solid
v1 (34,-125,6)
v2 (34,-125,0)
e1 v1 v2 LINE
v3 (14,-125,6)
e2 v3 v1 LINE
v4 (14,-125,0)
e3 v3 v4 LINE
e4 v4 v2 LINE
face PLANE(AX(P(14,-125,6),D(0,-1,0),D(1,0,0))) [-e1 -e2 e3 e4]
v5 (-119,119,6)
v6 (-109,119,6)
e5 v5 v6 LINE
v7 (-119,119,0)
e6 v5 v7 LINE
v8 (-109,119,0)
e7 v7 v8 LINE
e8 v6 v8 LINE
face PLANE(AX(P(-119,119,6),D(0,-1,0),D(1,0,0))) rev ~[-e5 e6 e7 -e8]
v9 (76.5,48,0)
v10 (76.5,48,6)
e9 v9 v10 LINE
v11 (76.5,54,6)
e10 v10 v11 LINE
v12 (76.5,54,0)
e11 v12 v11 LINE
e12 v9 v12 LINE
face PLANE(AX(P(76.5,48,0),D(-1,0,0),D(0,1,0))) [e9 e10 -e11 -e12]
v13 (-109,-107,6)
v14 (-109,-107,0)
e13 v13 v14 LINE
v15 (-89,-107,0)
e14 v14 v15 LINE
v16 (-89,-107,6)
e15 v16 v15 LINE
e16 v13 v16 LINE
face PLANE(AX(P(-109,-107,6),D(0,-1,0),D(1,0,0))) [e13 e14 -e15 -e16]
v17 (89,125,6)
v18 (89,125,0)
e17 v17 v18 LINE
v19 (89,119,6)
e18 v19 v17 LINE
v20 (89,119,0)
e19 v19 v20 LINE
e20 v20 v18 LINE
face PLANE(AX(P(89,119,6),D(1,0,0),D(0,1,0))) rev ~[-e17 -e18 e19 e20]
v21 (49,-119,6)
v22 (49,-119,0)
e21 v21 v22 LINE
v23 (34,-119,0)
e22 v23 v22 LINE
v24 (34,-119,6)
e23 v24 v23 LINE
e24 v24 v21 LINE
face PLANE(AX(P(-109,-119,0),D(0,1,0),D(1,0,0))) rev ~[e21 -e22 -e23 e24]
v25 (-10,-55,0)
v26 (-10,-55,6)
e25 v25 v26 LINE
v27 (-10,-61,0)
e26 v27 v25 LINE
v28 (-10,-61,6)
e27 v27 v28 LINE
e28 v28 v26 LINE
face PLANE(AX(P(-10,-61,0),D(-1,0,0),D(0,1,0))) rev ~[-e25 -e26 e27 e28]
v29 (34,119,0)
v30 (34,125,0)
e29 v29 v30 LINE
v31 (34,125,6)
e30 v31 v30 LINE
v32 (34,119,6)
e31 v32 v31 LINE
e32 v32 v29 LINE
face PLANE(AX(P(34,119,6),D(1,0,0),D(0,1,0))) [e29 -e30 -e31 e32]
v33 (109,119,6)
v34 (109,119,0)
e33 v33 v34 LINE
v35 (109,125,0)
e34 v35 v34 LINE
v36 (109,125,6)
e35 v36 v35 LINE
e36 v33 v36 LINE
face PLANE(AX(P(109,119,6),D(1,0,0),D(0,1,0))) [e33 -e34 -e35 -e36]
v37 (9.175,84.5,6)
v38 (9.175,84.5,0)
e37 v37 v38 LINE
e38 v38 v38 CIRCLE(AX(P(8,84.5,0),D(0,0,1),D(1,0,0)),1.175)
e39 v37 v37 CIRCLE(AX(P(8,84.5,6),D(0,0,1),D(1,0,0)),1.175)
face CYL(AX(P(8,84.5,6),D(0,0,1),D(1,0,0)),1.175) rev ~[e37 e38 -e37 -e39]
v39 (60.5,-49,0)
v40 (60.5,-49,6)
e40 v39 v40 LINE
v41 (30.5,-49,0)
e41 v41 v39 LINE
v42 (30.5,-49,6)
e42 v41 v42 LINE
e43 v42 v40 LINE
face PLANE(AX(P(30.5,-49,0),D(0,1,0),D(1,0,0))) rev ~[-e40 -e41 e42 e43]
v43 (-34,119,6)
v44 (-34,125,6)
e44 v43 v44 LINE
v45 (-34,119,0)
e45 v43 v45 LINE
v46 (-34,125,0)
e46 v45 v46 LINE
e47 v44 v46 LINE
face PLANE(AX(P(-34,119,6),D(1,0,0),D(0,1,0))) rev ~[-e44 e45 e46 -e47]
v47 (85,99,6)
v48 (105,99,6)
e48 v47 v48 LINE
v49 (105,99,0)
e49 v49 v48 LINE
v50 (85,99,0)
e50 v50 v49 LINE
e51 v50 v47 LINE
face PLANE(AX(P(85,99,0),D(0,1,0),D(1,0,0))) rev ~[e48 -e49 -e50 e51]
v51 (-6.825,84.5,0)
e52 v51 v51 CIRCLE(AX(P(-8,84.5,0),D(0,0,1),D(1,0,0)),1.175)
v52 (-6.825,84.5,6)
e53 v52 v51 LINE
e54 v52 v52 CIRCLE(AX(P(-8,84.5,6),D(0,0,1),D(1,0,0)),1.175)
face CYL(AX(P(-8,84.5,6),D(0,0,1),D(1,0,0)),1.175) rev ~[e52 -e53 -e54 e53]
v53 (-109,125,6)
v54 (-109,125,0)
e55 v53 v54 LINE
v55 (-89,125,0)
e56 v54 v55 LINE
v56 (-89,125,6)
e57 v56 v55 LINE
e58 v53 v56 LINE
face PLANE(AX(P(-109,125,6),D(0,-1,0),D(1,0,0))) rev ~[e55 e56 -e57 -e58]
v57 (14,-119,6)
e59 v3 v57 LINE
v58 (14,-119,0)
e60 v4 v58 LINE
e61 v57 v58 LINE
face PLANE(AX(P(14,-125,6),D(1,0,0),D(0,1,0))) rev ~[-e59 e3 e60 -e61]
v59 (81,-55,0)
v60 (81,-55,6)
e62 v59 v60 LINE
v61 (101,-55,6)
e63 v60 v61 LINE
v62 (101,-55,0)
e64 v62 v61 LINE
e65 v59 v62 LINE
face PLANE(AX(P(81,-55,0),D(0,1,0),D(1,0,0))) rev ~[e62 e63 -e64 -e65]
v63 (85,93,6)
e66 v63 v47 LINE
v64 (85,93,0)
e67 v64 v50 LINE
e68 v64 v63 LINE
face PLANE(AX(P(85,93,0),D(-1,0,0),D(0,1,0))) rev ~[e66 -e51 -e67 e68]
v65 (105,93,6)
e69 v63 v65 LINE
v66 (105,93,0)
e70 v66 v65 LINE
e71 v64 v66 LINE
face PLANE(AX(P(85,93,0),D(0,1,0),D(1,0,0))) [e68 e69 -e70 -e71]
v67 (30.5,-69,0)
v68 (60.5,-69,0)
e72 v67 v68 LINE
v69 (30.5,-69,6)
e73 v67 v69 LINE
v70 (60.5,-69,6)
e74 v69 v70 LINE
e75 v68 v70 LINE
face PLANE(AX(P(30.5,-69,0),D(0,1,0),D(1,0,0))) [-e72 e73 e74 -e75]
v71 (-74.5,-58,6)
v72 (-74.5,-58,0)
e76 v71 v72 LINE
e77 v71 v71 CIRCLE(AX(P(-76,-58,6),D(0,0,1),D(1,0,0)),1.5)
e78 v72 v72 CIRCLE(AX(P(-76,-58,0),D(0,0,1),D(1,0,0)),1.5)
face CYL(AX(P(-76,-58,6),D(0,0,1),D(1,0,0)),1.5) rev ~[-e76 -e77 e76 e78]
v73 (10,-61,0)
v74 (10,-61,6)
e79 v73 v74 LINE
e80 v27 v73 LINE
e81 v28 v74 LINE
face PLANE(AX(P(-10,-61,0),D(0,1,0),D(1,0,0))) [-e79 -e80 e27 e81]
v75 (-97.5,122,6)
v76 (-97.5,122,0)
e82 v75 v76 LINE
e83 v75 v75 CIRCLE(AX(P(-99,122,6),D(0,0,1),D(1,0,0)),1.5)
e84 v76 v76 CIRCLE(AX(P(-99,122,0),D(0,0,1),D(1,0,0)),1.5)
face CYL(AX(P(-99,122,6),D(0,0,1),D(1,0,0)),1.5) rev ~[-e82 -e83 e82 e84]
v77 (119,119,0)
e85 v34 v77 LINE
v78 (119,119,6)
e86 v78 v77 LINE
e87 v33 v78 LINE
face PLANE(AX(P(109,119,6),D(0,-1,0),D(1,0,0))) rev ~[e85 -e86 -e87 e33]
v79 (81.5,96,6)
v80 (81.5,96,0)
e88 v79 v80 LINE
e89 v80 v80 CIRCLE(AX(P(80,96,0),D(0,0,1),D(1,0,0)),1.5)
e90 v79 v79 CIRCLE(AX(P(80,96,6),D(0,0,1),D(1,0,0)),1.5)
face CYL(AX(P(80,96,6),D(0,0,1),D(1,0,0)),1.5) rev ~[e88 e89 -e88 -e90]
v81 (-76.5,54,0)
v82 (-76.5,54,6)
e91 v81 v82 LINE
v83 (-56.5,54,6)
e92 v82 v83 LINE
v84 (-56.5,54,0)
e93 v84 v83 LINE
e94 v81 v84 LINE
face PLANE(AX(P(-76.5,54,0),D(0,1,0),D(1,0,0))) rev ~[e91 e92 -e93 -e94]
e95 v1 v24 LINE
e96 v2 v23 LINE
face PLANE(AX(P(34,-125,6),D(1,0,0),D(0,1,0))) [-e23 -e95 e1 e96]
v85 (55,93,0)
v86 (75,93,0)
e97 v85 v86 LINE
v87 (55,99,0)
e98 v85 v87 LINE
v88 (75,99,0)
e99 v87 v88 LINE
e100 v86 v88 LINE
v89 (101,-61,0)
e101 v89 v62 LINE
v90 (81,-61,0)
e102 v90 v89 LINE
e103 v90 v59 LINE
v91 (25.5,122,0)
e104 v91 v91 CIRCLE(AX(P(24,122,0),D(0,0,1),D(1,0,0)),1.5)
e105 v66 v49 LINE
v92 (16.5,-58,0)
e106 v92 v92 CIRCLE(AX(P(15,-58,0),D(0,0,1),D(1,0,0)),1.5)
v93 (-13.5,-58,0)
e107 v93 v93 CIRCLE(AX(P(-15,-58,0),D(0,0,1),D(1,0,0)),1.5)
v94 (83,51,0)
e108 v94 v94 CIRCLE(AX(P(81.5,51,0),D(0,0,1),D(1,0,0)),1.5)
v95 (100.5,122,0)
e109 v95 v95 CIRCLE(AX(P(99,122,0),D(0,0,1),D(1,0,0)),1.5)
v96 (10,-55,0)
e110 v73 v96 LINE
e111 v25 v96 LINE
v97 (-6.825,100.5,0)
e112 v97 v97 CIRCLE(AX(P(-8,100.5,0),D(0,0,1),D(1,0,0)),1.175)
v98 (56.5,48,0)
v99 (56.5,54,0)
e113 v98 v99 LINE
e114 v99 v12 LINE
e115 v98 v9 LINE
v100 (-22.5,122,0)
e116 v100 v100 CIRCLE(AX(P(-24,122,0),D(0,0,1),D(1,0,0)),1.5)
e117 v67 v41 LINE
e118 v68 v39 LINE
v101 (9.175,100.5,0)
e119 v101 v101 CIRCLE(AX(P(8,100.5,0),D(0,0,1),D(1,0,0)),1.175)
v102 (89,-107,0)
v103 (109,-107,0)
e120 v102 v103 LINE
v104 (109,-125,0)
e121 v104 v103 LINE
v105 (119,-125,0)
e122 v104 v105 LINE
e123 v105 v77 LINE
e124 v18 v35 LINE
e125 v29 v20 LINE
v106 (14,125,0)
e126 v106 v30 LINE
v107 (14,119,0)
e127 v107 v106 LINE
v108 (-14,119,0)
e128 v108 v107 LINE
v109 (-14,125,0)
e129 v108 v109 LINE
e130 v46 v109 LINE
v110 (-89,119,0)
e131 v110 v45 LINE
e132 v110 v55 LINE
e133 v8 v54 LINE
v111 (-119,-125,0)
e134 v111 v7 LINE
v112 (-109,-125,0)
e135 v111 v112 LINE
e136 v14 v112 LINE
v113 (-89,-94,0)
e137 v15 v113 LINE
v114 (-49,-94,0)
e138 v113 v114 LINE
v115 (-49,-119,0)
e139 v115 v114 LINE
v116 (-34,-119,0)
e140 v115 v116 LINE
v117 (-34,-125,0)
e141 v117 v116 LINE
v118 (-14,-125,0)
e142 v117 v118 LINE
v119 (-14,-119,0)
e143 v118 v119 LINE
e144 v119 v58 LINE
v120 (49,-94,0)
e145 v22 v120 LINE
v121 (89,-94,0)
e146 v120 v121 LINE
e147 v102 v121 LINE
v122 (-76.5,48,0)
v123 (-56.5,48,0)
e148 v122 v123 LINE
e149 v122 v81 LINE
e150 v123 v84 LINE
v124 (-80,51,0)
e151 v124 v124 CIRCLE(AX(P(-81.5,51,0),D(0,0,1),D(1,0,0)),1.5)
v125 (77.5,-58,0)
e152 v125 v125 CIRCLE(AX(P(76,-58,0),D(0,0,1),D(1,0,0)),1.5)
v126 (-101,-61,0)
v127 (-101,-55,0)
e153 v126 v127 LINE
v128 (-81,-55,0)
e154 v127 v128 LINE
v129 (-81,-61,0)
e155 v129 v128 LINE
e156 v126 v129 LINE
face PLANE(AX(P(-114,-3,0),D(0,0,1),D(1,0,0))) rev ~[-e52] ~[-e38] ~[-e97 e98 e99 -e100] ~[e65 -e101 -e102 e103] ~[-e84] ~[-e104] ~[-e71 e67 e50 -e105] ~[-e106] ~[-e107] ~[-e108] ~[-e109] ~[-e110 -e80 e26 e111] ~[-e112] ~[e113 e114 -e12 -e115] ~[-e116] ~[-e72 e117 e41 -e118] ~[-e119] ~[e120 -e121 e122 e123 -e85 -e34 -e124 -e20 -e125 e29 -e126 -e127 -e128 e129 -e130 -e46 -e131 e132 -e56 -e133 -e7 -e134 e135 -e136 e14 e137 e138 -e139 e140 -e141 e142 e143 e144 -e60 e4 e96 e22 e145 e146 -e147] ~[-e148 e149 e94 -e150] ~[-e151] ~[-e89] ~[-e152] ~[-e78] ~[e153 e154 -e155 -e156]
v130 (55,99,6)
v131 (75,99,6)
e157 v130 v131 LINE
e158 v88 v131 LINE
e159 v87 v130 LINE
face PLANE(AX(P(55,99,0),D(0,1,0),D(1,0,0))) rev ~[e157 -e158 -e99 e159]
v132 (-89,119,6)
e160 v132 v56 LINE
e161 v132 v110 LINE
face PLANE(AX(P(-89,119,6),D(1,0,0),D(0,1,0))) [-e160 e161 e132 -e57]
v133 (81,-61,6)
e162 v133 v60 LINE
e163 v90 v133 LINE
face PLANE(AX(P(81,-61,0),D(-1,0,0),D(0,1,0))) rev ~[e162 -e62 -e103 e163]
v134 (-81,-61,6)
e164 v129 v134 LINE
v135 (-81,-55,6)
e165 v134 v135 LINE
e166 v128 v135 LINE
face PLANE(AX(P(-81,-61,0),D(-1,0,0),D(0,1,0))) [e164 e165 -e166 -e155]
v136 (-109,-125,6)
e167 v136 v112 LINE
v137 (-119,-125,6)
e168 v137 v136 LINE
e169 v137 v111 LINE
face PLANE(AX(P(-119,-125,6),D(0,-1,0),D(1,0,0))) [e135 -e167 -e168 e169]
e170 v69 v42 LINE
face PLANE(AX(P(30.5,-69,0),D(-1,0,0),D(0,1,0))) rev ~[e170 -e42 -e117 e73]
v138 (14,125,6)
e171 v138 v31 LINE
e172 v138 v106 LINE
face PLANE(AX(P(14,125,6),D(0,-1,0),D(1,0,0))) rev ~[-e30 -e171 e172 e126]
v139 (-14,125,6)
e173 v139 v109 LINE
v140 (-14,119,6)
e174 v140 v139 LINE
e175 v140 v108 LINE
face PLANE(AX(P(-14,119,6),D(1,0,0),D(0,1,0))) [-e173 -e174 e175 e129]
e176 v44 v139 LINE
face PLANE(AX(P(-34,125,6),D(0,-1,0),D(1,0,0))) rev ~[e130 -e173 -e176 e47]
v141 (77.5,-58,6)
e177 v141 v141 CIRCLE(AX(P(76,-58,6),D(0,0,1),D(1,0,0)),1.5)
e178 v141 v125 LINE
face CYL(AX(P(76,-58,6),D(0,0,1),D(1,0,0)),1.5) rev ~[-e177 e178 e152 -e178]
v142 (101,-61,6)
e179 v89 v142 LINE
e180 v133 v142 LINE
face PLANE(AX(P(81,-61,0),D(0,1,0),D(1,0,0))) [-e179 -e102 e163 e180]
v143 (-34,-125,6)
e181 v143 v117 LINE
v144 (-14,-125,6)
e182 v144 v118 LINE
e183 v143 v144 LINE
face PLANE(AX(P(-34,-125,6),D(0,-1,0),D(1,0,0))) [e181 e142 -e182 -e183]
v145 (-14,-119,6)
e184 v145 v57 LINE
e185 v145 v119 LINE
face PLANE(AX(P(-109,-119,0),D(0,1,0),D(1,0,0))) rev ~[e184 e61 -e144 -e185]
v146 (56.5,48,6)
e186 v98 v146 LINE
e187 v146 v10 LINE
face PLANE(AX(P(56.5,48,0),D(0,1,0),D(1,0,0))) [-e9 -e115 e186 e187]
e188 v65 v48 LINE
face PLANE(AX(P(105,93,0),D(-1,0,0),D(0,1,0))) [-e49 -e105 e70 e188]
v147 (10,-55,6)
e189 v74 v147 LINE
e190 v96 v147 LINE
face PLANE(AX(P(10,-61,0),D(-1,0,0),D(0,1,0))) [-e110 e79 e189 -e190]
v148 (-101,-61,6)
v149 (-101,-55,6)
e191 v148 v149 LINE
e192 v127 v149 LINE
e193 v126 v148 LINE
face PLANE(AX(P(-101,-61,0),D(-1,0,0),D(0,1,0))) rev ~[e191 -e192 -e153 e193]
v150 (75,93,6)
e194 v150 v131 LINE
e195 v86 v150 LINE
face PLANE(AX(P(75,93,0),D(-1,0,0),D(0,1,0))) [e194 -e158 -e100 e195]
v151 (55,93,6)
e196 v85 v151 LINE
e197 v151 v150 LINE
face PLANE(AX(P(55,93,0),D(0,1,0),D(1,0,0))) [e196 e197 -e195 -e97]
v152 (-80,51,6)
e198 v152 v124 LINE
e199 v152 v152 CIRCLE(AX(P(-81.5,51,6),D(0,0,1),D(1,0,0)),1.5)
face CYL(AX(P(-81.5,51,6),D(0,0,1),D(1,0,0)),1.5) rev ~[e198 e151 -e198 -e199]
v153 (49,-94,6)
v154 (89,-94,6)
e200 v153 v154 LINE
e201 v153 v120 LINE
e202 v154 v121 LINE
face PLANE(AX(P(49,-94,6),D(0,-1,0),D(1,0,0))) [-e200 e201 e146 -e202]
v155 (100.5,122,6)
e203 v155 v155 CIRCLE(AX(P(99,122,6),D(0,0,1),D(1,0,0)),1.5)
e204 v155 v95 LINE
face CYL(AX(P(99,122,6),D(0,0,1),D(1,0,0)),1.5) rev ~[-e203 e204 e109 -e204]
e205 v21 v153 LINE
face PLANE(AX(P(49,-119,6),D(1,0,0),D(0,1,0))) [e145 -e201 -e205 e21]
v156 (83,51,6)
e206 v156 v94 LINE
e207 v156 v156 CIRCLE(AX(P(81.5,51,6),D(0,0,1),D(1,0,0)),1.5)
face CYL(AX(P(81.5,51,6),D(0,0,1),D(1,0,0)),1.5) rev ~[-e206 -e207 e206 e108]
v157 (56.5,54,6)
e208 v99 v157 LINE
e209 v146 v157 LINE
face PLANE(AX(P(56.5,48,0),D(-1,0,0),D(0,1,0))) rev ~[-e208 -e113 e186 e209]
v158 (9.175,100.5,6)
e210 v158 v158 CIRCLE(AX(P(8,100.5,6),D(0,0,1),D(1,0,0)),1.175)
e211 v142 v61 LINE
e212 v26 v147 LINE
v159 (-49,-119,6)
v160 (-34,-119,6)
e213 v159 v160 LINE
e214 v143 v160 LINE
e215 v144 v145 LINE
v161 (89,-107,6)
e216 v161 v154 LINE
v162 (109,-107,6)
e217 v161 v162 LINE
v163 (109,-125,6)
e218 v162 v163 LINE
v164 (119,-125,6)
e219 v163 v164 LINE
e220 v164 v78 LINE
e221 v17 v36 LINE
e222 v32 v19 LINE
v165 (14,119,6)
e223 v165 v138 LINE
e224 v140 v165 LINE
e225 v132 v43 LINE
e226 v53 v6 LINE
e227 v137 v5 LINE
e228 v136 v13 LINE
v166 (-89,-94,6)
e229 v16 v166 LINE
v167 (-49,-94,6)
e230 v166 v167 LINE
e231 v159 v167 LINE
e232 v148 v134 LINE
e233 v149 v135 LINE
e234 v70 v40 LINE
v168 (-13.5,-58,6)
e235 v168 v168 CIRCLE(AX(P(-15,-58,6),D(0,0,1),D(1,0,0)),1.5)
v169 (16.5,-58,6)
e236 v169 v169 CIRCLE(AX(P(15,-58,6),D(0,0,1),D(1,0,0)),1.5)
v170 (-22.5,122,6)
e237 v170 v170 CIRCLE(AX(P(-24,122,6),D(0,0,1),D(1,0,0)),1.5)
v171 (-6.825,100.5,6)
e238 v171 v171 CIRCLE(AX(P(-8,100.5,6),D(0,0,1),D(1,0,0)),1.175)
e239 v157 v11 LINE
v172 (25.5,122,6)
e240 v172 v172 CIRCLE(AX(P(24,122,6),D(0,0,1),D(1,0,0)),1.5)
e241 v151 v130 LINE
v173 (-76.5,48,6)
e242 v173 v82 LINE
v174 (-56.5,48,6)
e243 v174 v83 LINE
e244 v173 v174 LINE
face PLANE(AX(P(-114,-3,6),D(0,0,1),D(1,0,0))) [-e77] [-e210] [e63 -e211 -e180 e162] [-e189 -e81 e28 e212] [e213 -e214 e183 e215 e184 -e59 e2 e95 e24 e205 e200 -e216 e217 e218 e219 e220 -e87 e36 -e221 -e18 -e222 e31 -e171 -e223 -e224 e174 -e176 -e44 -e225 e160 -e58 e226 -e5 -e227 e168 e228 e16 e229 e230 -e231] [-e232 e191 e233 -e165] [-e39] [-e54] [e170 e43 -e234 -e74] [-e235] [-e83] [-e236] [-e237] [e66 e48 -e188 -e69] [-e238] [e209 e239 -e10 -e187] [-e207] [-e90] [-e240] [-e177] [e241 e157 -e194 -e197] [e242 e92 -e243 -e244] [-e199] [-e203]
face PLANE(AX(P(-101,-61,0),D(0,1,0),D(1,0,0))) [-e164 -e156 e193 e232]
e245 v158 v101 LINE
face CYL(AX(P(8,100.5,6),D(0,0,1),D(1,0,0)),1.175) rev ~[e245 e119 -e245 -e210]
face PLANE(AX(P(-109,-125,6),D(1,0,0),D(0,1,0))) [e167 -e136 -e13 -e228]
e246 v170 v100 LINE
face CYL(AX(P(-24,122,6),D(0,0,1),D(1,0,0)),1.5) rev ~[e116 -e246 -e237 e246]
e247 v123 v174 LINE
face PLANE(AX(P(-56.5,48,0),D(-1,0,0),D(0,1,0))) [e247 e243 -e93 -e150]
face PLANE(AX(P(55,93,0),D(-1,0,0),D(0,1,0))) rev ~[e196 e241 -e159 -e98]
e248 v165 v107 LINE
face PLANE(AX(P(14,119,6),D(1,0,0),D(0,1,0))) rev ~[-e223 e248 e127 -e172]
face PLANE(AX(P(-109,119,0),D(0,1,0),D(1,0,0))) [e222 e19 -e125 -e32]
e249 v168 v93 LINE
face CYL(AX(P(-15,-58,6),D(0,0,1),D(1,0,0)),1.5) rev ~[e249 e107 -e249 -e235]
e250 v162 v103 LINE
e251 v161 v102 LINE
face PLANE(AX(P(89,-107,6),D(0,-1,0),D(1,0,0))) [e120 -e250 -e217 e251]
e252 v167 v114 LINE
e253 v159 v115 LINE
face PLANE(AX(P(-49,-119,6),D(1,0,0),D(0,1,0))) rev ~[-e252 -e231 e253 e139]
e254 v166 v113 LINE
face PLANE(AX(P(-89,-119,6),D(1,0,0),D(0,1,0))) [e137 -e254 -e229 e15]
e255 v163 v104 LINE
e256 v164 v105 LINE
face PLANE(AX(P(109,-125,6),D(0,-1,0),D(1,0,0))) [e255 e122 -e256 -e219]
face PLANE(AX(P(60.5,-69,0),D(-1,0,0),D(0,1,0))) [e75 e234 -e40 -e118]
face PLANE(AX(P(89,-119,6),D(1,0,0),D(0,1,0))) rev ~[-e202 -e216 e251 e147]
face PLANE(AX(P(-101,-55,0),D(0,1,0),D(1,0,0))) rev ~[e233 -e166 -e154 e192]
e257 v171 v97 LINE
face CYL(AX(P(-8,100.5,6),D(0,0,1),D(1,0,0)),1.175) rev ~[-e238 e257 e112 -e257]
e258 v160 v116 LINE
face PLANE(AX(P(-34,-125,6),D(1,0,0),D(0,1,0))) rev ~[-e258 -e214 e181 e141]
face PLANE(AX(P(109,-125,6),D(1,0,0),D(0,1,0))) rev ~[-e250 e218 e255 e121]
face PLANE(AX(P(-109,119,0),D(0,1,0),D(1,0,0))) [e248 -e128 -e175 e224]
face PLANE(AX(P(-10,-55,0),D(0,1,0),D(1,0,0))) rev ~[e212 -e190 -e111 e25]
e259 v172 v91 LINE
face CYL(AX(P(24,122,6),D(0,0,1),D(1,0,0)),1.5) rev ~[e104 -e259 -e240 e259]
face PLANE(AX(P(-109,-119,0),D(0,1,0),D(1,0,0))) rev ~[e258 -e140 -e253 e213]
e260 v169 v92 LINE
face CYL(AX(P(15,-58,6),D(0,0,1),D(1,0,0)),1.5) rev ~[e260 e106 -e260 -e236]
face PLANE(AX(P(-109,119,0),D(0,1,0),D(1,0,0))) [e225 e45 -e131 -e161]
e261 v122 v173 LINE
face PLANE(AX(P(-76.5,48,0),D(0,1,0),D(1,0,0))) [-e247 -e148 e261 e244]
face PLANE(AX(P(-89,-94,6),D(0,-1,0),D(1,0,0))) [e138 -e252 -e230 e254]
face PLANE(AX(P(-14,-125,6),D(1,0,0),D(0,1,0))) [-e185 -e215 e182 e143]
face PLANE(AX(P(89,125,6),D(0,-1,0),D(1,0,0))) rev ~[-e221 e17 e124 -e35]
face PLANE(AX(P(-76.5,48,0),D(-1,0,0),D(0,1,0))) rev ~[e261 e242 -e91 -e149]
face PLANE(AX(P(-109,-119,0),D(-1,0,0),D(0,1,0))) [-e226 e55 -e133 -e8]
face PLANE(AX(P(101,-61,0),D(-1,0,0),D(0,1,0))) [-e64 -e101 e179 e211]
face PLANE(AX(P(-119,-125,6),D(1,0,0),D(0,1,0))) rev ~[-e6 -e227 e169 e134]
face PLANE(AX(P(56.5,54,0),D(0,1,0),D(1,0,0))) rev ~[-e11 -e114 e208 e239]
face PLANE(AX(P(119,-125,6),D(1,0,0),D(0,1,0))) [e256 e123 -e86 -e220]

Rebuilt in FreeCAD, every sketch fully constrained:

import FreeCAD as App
import Part
import Sketcher
from FreeCAD import Vector

doc = App.newDocument("Part")
params = doc.addObject("Spreadsheet::Sheet", "Params")
for row, (alias, value) in enumerate([
    ("sketch1_width", "218 mm"),
    ("sketch1_width2", "20 mm"),
    ("sketch1_width3", "30 mm"),
    ("sketch1_height", "238 mm"),
    ("sketch1_height2", "6 mm"),
    ("pad1_length", "6 mm"),
    ("sketch2_width", "40 mm"),
    ("sketch2_height", "25 mm"),
    ("pocket1_length", "6 mm"),
    ("sketch3_width", "20 mm"),
    ("sketch3_height", "6 mm"),
    ("pad2_length", "6 mm"),
    ("sketch4_diameter", "3 mm"),
    ("pocket2_length", "6 mm"),
    ("sketch5_width", "10 mm"),
    ("sketch5_height", "244 mm"),
    ("pad3_length", "6 mm"),
    ("sketch6_width", "20 mm"),
    ("sketch6_height", "12 mm"),
    ("pocket3_length", "6 mm"),
    ("sketch7_diameter", "2.35 mm"),
], start=1):
    params.set(f"A{row}", alias)
    params.set(f"B{row}", "=" + value)
    params.setAlias(f"B{row}", alias)

body = doc.addObject("PartDesign::Body", "Body")

sketch1 = body.newObject("Sketcher::SketchObject", "Sketch")
sketch1.AttachmentSupport = (doc.getObject("XY_Plane"), [""])
sketch1.MapMode = "FlatFace"
sketch1.addGeometry(Part.LineSegment(Vector(-109, 119, 0), Vector(-109, -119, 0)), False)
sketch1.addGeometry(Part.LineSegment(Vector(-109, -119, 0), Vector(109, -119, 0)), False)
sketch1.addGeometry(Part.LineSegment(Vector(109, -119, 0), Vector(109, 119, 0)), False)
sketch1.addGeometry(Part.LineSegment(Vector(109, 119, 0), Vector(-109, 119, 0)), False)
sketch1.addGeometry(Part.LineSegment(Vector(-81, -61, 0), Vector(-101, -61, 0)), False)
sketch1.addGeometry(Part.LineSegment(Vector(-101, -61, 0), Vector(-101, -55, 0)), False)
sketch1.addGeometry(Part.LineSegment(Vector(-101, -55, 0), Vector(-81, -55, 0)), False)
sketch1.addGeometry(Part.LineSegment(Vector(-81, -55, 0), Vector(-81, -61, 0)), False)
sketch1.addGeometry(Part.LineSegment(Vector(10, -61, 0), Vector(-10, -61, 0)), False)
sketch1.addGeometry(Part.LineSegment(Vector(-10, -61, 0), Vector(-10, -55, 0)), False)
sketch1.addGeometry(Part.LineSegment(Vector(-10, -55, 0), Vector(10, -55, 0)), False)
sketch1.addGeometry(Part.LineSegment(Vector(10, -55, 0), Vector(10, -61, 0)), False)
sketch1.addGeometry(Part.LineSegment(Vector(60, -69, 0), Vector(30, -69, 0)), False)
sketch1.addGeometry(Part.LineSegment(Vector(30, -69, 0), Vector(30, -49, 0)), False)
sketch1.addGeometry(Part.LineSegment(Vector(30, -49, 0), Vector(60, -49, 0)), False)
sketch1.addGeometry(Part.LineSegment(Vector(60, -49, 0), Vector(60, -69, 0)), False)
sketch1.addGeometry(Part.LineSegment(Vector(101, -61, 0), Vector(81, -61, 0)), False)
sketch1.addGeometry(Part.LineSegment(Vector(81, -61, 0), Vector(81, -55, 0)), False)
sketch1.addGeometry(Part.LineSegment(Vector(81, -55, 0), Vector(101, -55, 0)), False)
sketch1.addGeometry(Part.LineSegment(Vector(101, -55, 0), Vector(101, -61, 0)), False)
sketch1.addGeometry(Part.LineSegment(Vector(-56, 48, 0), Vector(-76, 48, 0)), False)
sketch1.addGeometry(Part.LineSegment(Vector(-76, 48, 0), Vector(-76, 54, 0)), False)
sketch1.addGeometry(Part.LineSegment(Vector(-76, 54, 0), Vector(-56, 54, 0)), False)
sketch1.addGeometry(Part.LineSegment(Vector(-56, 54, 0), Vector(-56, 48, 0)), False)
sketch1.addGeometry(Part.LineSegment(Vector(76, 48, 0), Vector(56, 48, 0)), False)
sketch1.addGeometry(Part.LineSegment(Vector(56, 48, 0), Vector(56, 54, 0)), False)
sketch1.addGeometry(Part.LineSegment(Vector(56, 54, 0), Vector(76, 54, 0)), False)
sketch1.addGeometry(Part.LineSegment(Vector(76, 54, 0), Vector(76, 48, 0)), False)
sketch1.addGeometry(Part.LineSegment(Vector(75, 93, 0), Vector(55, 93, 0)), False)
sketch1.addGeometry(Part.LineSegment(Vector(55, 93, 0), Vector(55, 99, 0)), False)
sketch1.addGeometry(Part.LineSegment(Vector(55, 99, 0), Vector(75, 99, 0)), False)
sketch1.addGeometry(Part.LineSegment(Vector(75, 99, 0), Vector(75, 93, 0)), False)
sketch1.addGeometry(Part.LineSegment(Vector(105, 93, 0), Vector(85, 93, 0)), False)
sketch1.addGeometry(Part.LineSegment(Vector(85, 93, 0), Vector(85, 99, 0)), False)
sketch1.addGeometry(Part.LineSegment(Vector(85, 99, 0), Vector(105, 99, 0)), False)
sketch1.addGeometry(Part.LineSegment(Vector(105, 99, 0), Vector(105, 93, 0)), False)
sketch1.addConstraint(Sketcher.Constraint("Coincident", 0, 2, 1, 1))
sketch1.addConstraint(Sketcher.Constraint("Coincident", 1, 2, 2, 1))
sketch1.addConstraint(Sketcher.Constraint("Coincident", 2, 2, 3, 1))
sketch1.addConstraint(Sketcher.Constraint("Coincident", 3, 2, 0, 1))
sketch1.addConstraint(Sketcher.Constraint("Coincident", 4, 2, 5, 1))
sketch1.addConstraint(Sketcher.Constraint("Coincident", 5, 2, 6, 1))
sketch1.addConstraint(Sketcher.Constraint("Coincident", 6, 2, 7, 1))
sketch1.addConstraint(Sketcher.Constraint("Coincident", 7, 2, 4, 1))
sketch1.addConstraint(Sketcher.Constraint("Coincident", 8, 2, 9, 1))
sketch1.addConstraint(Sketcher.Constraint("Coincident", 9, 2, 10, 1))
sketch1.addConstraint(Sketcher.Constraint("Coincident", 10, 2, 11, 1))
sketch1.addConstraint(Sketcher.Constraint("Coincident", 11, 2, 8, 1))
sketch1.addConstraint(Sketcher.Constraint("Coincident", 12, 2, 13, 1))
sketch1.addConstraint(Sketcher.Constraint("Coincident", 13, 2, 14, 1))
sketch1.addConstraint(Sketcher.Constraint("Coincident", 14, 2, 15, 1))
sketch1.addConstraint(Sketcher.Constraint("Coincident", 15, 2, 12, 1))
sketch1.addConstraint(Sketcher.Constraint("Coincident", 16, 2, 17, 1))
sketch1.addConstraint(Sketcher.Constraint("Coincident", 17, 2, 18, 1))
sketch1.addConstraint(Sketcher.Constraint("Coincident", 18, 2, 19, 1))
sketch1.addConstraint(Sketcher.Constraint("Coincident", 19, 2, 16, 1))
sketch1.addConstraint(Sketcher.Constraint("Coincident", 20, 2, 21, 1))
sketch1.addConstraint(Sketcher.Constraint("Coincident", 21, 2, 22, 1))
sketch1.addConstraint(Sketcher.Constraint("Coincident", 22, 2, 23, 1))
sketch1.addConstraint(Sketcher.Constraint("Coincident", 23, 2, 20, 1))
sketch1.addConstraint(Sketcher.Constraint("Coincident", 24, 2, 25, 1))
sketch1.addConstraint(Sketcher.Constraint("Coincident", 25, 2, 26, 1))
sketch1.addConstraint(Sketcher.Constraint("Coincident", 26, 2, 27, 1))
sketch1.addConstraint(Sketcher.Constraint("Coincident", 27, 2, 24, 1))
sketch1.addConstraint(Sketcher.Constraint("Coincident", 28, 2, 29, 1))
sketch1.addConstraint(Sketcher.Constraint("Coincident", 29, 2, 30, 1))
sketch1.addConstraint(Sketcher.Constraint("Coincident", 30, 2, 31, 1))
sketch1.addConstraint(Sketcher.Constraint("Coincident", 31, 2, 28, 1))
sketch1.addConstraint(Sketcher.Constraint("Coincident", 32, 2, 33, 1))
sketch1.addConstraint(Sketcher.Constraint("Coincident", 33, 2, 34, 1))
sketch1.addConstraint(Sketcher.Constraint("Coincident", 34, 2, 35, 1))
sketch1.addConstraint(Sketcher.Constraint("Coincident", 35, 2, 32, 1))
sketch1.addConstraint(Sketcher.Constraint("Vertical", 0))
sketch1.addConstraint(Sketcher.Constraint("Horizontal", 1))
sketch1.addConstraint(Sketcher.Constraint("Vertical", 2))
sketch1.addConstraint(Sketcher.Constraint("Horizontal", 3))
sketch1.addConstraint(Sketcher.Constraint("Horizontal", 4))
sketch1.addConstraint(Sketcher.Constraint("Vertical", 5))
sketch1.addConstraint(Sketcher.Constraint("Horizontal", 6))
sketch1.addConstraint(Sketcher.Constraint("Vertical", 7))
sketch1.addConstraint(Sketcher.Constraint("Horizontal", 8))
sketch1.addConstraint(Sketcher.Constraint("Vertical", 9))
sketch1.addConstraint(Sketcher.Constraint("Horizontal", 10))
sketch1.addConstraint(Sketcher.Constraint("Vertical", 11))
sketch1.addConstraint(Sketcher.Constraint("Horizontal", 12))
sketch1.addConstraint(Sketcher.Constraint("Vertical", 13))
sketch1.addConstraint(Sketcher.Constraint("Horizontal", 14))
sketch1.addConstraint(Sketcher.Constraint("Vertical", 15))
sketch1.addConstraint(Sketcher.Constraint("Horizontal", 16))
sketch1.addConstraint(Sketcher.Constraint("Vertical", 17))
sketch1.addConstraint(Sketcher.Constraint("Horizontal", 18))
sketch1.addConstraint(Sketcher.Constraint("Vertical", 19))
sketch1.addConstraint(Sketcher.Constraint("Horizontal", 20))
sketch1.addConstraint(Sketcher.Constraint("Vertical", 21))
sketch1.addConstraint(Sketcher.Constraint("Horizontal", 22))
sketch1.addConstraint(Sketcher.Constraint("Vertical", 23))
sketch1.addConstraint(Sketcher.Constraint("Horizontal", 24))
sketch1.addConstraint(Sketcher.Constraint("Vertical", 25))
sketch1.addConstraint(Sketcher.Constraint("Horizontal", 26))
sketch1.addConstraint(Sketcher.Constraint("Vertical", 27))
sketch1.addConstraint(Sketcher.Constraint("Horizontal", 28))
sketch1.addConstraint(Sketcher.Constraint("Vertical", 29))
sketch1.addConstraint(Sketcher.Constraint("Horizontal", 30))
sketch1.addConstraint(Sketcher.Constraint("Vertical", 31))
sketch1.addConstraint(Sketcher.Constraint("Horizontal", 32))
sketch1.addConstraint(Sketcher.Constraint("Vertical", 33))
sketch1.addConstraint(Sketcher.Constraint("Horizontal", 34))
sketch1.addConstraint(Sketcher.Constraint("Vertical", 35))
sketch1.addConstraint(Sketcher.Constraint("Symmetric", 0, 2, 2, 2, -1, 1))
sketch1.addConstraint(Sketcher.Constraint("Symmetric", 7, 2, 16, 2, -2))
sketch1.addConstraint(Sketcher.Constraint("Symmetric", 5, 2, 18, 2, -2))
sketch1.addConstraint(Sketcher.Constraint("Symmetric", 23, 2, 24, 2, -2))
sketch1.addConstraint(Sketcher.Constraint("Symmetric", 21, 2, 26, 2, -2))
sketch1.addConstraint(Sketcher.Constraint("Horizontal", 7, 2, 8, 2))
sketch1.addConstraint(Sketcher.Constraint("Horizontal", 6, 2, 9, 2))
sketch1.addConstraint(Sketcher.Constraint("Horizontal", 31, 2, 32, 2))
sketch1.addConstraint(Sketcher.Constraint("Horizontal", 30, 2, 33, 2))
sketch1.addConstraint(Sketcher.Constraint("Equal", 6, 8))
sketch1.addConstraint(Sketcher.Constraint("Equal", 18, 20))
sketch1.addConstraint(Sketcher.Constraint("Equal", 26, 28))
sketch1.addConstraint(Sketcher.Constraint("Equal", 30, 32))
sketch1.addConstraint(Sketcher.Constraint("Equal", 34, 13))
sketch1.addConstraint(Sketcher.Constraint("Equal", 19, 21))
sketch1.addConstraint(Sketcher.Constraint("Equal", 27, 29))
sketch1.addConstraint(Sketcher.Constraint("DistanceX", 1, 1, 1, 2, 218.0))
sketch1.addConstraint(Sketcher.Constraint("DistanceX", 4, 2, 4, 1, 20.0))
sketch1.addConstraint(Sketcher.Constraint("DistanceX", 12, 2, 12, 1, 30.0))
sketch1.addConstraint(Sketcher.Constraint("DistanceY", 0, 2, 0, 1, 238.0))
sketch1.addConstraint(Sketcher.Constraint("DistanceY", 5, 1, 5, 2, 6.0))
sketch1.addConstraint(Sketcher.Constraint("DistanceX", 4, 2, -1, 1, 101.0))
sketch1.addConstraint(Sketcher.Constraint("DistanceY", 4, 2, -1, 1, 61.0))
sketch1.addConstraint(Sketcher.Constraint("DistanceX", 8, 2, -1, 1, 10.0))
sketch1.addConstraint(Sketcher.Constraint("DistanceY", 12, 2, -1, 1, 69.0))
sketch1.addConstraint(Sketcher.Constraint("DistanceY", -1, 1, 20, 2, 48.0))
sketch1.addConstraint(Sketcher.Constraint("DistanceX", -1, 1, 28, 2, 55.0))
sketch1.addConstraint(Sketcher.Constraint("DistanceY", -1, 1, 28, 2, 93.0))
sketch1.addConstraint(Sketcher.Constraint("DistanceX", -1, 1, 32, 2, 85.0))
sketch1.addConstraint(Sketcher.Constraint("DistanceX", 24, 2, 14, 2, 4.0))
sketch1.addConstraint(Sketcher.Constraint("DistanceX", -1, 1, 12, 2, 30.5))
sketch1.setExpression("Constraints[88]", "Params.sketch1_width")
sketch1.setExpression("Constraints[89]", "Params.sketch1_width2")
sketch1.setExpression("Constraints[90]", "Params.sketch1_width3")
sketch1.setExpression("Constraints[91]", "Params.sketch1_height")
sketch1.setExpression("Constraints[92]", "Params.sketch1_height2")
pad1 = body.newObject("PartDesign::Pad", "Pad")
pad1.Profile = sketch1
pad1.setExpression("Length", "Params.pad1_length")

sketch2 = body.newObject("Sketcher::SketchObject", "Sketch001")
sketch2.AttachmentSupport = (doc.getObject("XY_Plane"), [""])
sketch2.MapMode = "FlatFace"
sketch2.AttachmentOffset = App.Placement(Vector(0, 0, 6), App.Rotation())
sketch2.addGeometry(Part.LineSegment(Vector(-89, -94, 0), Vector(-89, -119, 0)), False)
sketch2.addGeometry(Part.LineSegment(Vector(-89, -119, 0), Vector(-49, -119, 0)), False)
sketch2.addGeometry(Part.LineSegment(Vector(-49, -119, 0), Vector(-49, -94, 0)), False)
sketch2.addGeometry(Part.LineSegment(Vector(-49, -94, 0), Vector(-89, -94, 0)), False)
sketch2.addGeometry(Part.LineSegment(Vector(49, -94, 0), Vector(49, -119, 0)), False)
sketch2.addGeometry(Part.LineSegment(Vector(49, -119, 0), Vector(89, -119, 0)), False)
sketch2.addGeometry(Part.LineSegment(Vector(89, -119, 0), Vector(89, -94, 0)), False)
sketch2.addGeometry(Part.LineSegment(Vector(89, -94, 0), Vector(49, -94, 0)), False)
sketch2.addConstraint(Sketcher.Constraint("Coincident", 0, 2, 1, 1))
sketch2.addConstraint(Sketcher.Constraint("Coincident", 1, 2, 2, 1))
sketch2.addConstraint(Sketcher.Constraint("Coincident", 2, 2, 3, 1))
sketch2.addConstraint(Sketcher.Constraint("Coincident", 3, 2, 0, 1))
sketch2.addConstraint(Sketcher.Constraint("Coincident", 4, 2, 5, 1))
sketch2.addConstraint(Sketcher.Constraint("Coincident", 5, 2, 6, 1))
sketch2.addConstraint(Sketcher.Constraint("Coincident", 6, 2, 7, 1))
sketch2.addConstraint(Sketcher.Constraint("Coincident", 7, 2, 4, 1))
sketch2.addConstraint(Sketcher.Constraint("Vertical", 0))
sketch2.addConstraint(Sketcher.Constraint("Horizontal", 1))
sketch2.addConstraint(Sketcher.Constraint("Vertical", 2))
sketch2.addConstraint(Sketcher.Constraint("Horizontal", 3))
sketch2.addConstraint(Sketcher.Constraint("Vertical", 4))
sketch2.addConstraint(Sketcher.Constraint("Horizontal", 5))
sketch2.addConstraint(Sketcher.Constraint("Vertical", 6))
sketch2.addConstraint(Sketcher.Constraint("Horizontal", 7))
sketch2.addConstraint(Sketcher.Constraint("Symmetric", 1, 2, 4, 2, -2))
sketch2.addConstraint(Sketcher.Constraint("Symmetric", 3, 2, 6, 2, -2))
sketch2.addConstraint(Sketcher.Constraint("DistanceX", 1, 1, 1, 2, 40.0))
sketch2.addConstraint(Sketcher.Constraint("DistanceY", 0, 2, 0, 1, 25.0))
sketch2.addConstraint(Sketcher.Constraint("DistanceX", 0, 2, -1, 1, 89.0))
sketch2.addConstraint(Sketcher.Constraint("DistanceY", 0, 2, -1, 1, 119.0))
sketch2.setExpression("Constraints[18]", "Params.sketch2_width")
sketch2.setExpression("Constraints[19]", "Params.sketch2_height")
pocket1 = body.newObject("PartDesign::Pocket", "Pocket")
pocket1.Profile = sketch2
pocket1.setExpression("Length", "Params.pocket1_length")

sketch3 = body.newObject("Sketcher::SketchObject", "Sketch002")
sketch3.AttachmentSupport = (doc.getObject("XY_Plane"), [""])
sketch3.MapMode = "FlatFace"
sketch3.AttachmentOffset = App.Placement(Vector(0, 0, 6), App.Rotation())
sketch3.addGeometry(Part.LineSegment(Vector(-34, -119, 0), Vector(-34, -125, 0)), False)
sketch3.addGeometry(Part.LineSegment(Vector(-34, -125, 0), Vector(-14, -125, 0)), False)
sketch3.addGeometry(Part.LineSegment(Vector(-14, -125, 0), Vector(-14, -119, 0)), False)
sketch3.addGeometry(Part.LineSegment(Vector(-14, -119, 0), Vector(-34, -119, 0)), False)
sketch3.addGeometry(Part.LineSegment(Vector(14, -119, 0), Vector(14, -125, 0)), False)
sketch3.addGeometry(Part.LineSegment(Vector(14, -125, 0), Vector(34, -125, 0)), False)
sketch3.addGeometry(Part.LineSegment(Vector(34, -125, 0), Vector(34, -119, 0)), False)
sketch3.addGeometry(Part.LineSegment(Vector(34, -119, 0), Vector(14, -119, 0)), False)
sketch3.addGeometry(Part.LineSegment(Vector(14, 125, 0), Vector(14, 119, 0)), False)
sketch3.addGeometry(Part.LineSegment(Vector(14, 119, 0), Vector(34, 119, 0)), False)
sketch3.addGeometry(Part.LineSegment(Vector(34, 119, 0), Vector(34, 125, 0)), False)
sketch3.addGeometry(Part.LineSegment(Vector(34, 125, 0), Vector(14, 125, 0)), False)
sketch3.addGeometry(Part.LineSegment(Vector(89, 125, 0), Vector(89, 119, 0)), False)
sketch3.addGeometry(Part.LineSegment(Vector(89, 119, 0), Vector(109, 119, 0)), False)
sketch3.addGeometry(Part.LineSegment(Vector(109, 119, 0), Vector(109, 125, 0)), False)
sketch3.addGeometry(Part.LineSegment(Vector(109, 125, 0), Vector(89, 125, 0)), False)
sketch3.addGeometry(Part.LineSegment(Vector(-34, 125, 0), Vector(-34, 119, 0)), False)
sketch3.addGeometry(Part.LineSegment(Vector(-34, 119, 0), Vector(-14, 119, 0)), False)
sketch3.addGeometry(Part.LineSegment(Vector(-14, 119, 0), Vector(-14, 125, 0)), False)
sketch3.addGeometry(Part.LineSegment(Vector(-14, 125, 0), Vector(-34, 125, 0)), False)
sketch3.addGeometry(Part.LineSegment(Vector(-109, 125, 0), Vector(-109, 119, 0)), False)
sketch3.addGeometry(Part.LineSegment(Vector(-109, 119, 0), Vector(-89, 119, 0)), False)
sketch3.addGeometry(Part.LineSegment(Vector(-89, 119, 0), Vector(-89, 125, 0)), False)
sketch3.addGeometry(Part.LineSegment(Vector(-89, 125, 0), Vector(-109, 125, 0)), False)
sketch3.addConstraint(Sketcher.Constraint("Coincident", 0, 2, 1, 1))
sketch3.addConstraint(Sketcher.Constraint("Coincident", 1, 2, 2, 1))
sketch3.addConstraint(Sketcher.Constraint("Coincident", 2, 2, 3, 1))
sketch3.addConstraint(Sketcher.Constraint("Coincident", 3, 2, 0, 1))
sketch3.addConstraint(Sketcher.Constraint("Coincident", 4, 2, 5, 1))
sketch3.addConstraint(Sketcher.Constraint("Coincident", 5, 2, 6, 1))
sketch3.addConstraint(Sketcher.Constraint("Coincident", 6, 2, 7, 1))
sketch3.addConstraint(Sketcher.Constraint("Coincident", 7, 2, 4, 1))
sketch3.addConstraint(Sketcher.Constraint("Coincident", 8, 2, 9, 1))
sketch3.addConstraint(Sketcher.Constraint("Coincident", 9, 2, 10, 1))
sketch3.addConstraint(Sketcher.Constraint("Coincident", 10, 2, 11, 1))
sketch3.addConstraint(Sketcher.Constraint("Coincident", 11, 2, 8, 1))
sketch3.addConstraint(Sketcher.Constraint("Coincident", 12, 2, 13, 1))
sketch3.addConstraint(Sketcher.Constraint("Coincident", 13, 2, 14, 1))
sketch3.addConstraint(Sketcher.Constraint("Coincident", 14, 2, 15, 1))
sketch3.addConstraint(Sketcher.Constraint("Coincident", 15, 2, 12, 1))
sketch3.addConstraint(Sketcher.Constraint("Coincident", 16, 2, 17, 1))
sketch3.addConstraint(Sketcher.Constraint("Coincident", 17, 2, 18, 1))
sketch3.addConstraint(Sketcher.Constraint("Coincident", 18, 2, 19, 1))
sketch3.addConstraint(Sketcher.Constraint("Coincident", 19, 2, 16, 1))
sketch3.addConstraint(Sketcher.Constraint("Coincident", 20, 2, 21, 1))
sketch3.addConstraint(Sketcher.Constraint("Coincident", 21, 2, 22, 1))
sketch3.addConstraint(Sketcher.Constraint("Coincident", 22, 2, 23, 1))
sketch3.addConstraint(Sketcher.Constraint("Coincident", 23, 2, 20, 1))
sketch3.addConstraint(Sketcher.Constraint("Vertical", 0))
sketch3.addConstraint(Sketcher.Constraint("Horizontal", 1))
sketch3.addConstraint(Sketcher.Constraint("Vertical", 2))
sketch3.addConstraint(Sketcher.Constraint("Horizontal", 3))
sketch3.addConstraint(Sketcher.Constraint("Vertical", 4))
sketch3.addConstraint(Sketcher.Constraint("Horizontal", 5))
sketch3.addConstraint(Sketcher.Constraint("Vertical", 6))
sketch3.addConstraint(Sketcher.Constraint("Horizontal", 7))
sketch3.addConstraint(Sketcher.Constraint("Vertical", 8))
sketch3.addConstraint(Sketcher.Constraint("Horizontal", 9))
sketch3.addConstraint(Sketcher.Constraint("Vertical", 10))
sketch3.addConstraint(Sketcher.Constraint("Horizontal", 11))
sketch3.addConstraint(Sketcher.Constraint("Vertical", 12))
sketch3.addConstraint(Sketcher.Constraint("Horizontal", 13))
sketch3.addConstraint(Sketcher.Constraint("Vertical", 14))
sketch3.addConstraint(Sketcher.Constraint("Horizontal", 15))
sketch3.addConstraint(Sketcher.Constraint("Vertical", 16))
sketch3.addConstraint(Sketcher.Constraint("Horizontal", 17))
sketch3.addConstraint(Sketcher.Constraint("Vertical", 18))
sketch3.addConstraint(Sketcher.Constraint("Horizontal", 19))
sketch3.addConstraint(Sketcher.Constraint("Vertical", 20))
sketch3.addConstraint(Sketcher.Constraint("Horizontal", 21))
sketch3.addConstraint(Sketcher.Constraint("Vertical", 22))
sketch3.addConstraint(Sketcher.Constraint("Horizontal", 23))
sketch3.addConstraint(Sketcher.Constraint("Symmetric", 2, 2, 8, 2, -1, 1))
sketch3.addConstraint(Sketcher.Constraint("Symmetric", 0, 2, 10, 2, -1, 1))
sketch3.addConstraint(Sketcher.Constraint("Symmetric", 6, 2, 16, 2, -1, 1))
sketch3.addConstraint(Sketcher.Constraint("Symmetric", 4, 2, 18, 2, -1, 1))
sketch3.addConstraint(Sketcher.Constraint("Symmetric", 1, 2, 4, 2, -2))
sketch3.addConstraint(Sketcher.Constraint("Symmetric", 3, 2, 6, 2, -2))
sketch3.addConstraint(Sketcher.Constraint("Symmetric", 13, 2, 20, 2, -2))
sketch3.addConstraint(Sketcher.Constraint("Symmetric", 15, 2, 22, 2, -2))
sketch3.addConstraint(Sketcher.Constraint("Horizontal", 9, 2, 12, 2))
sketch3.addConstraint(Sketcher.Constraint("Horizontal", 11, 2, 14, 2))
sketch3.addConstraint(Sketcher.Constraint("Equal", 11, 13))
sketch3.addConstraint(Sketcher.Constraint("DistanceX", 1, 1, 1, 2, 20.0))
sketch3.addConstraint(Sketcher.Constraint("DistanceY", 0, 2, 0, 1, 6.0))
sketch3.addConstraint(Sketcher.Constraint("DistanceX", 0, 2, -1, 1, 34.0))
sketch3.addConstraint(Sketcher.Constraint("DistanceY", 0, 2, -1, 1, 125.0))
sketch3.addConstraint(Sketcher.Constraint("DistanceX", -1, 1, 12, 2, 89.0))
sketch3.setExpression("Constraints[59]", "Params.sketch3_width")
sketch3.setExpression("Constraints[60]", "Params.sketch3_height")
pad2 = body.newObject("PartDesign::Pad", "Pad001")
pad2.Profile = sketch3
pad2.setExpression("Length", "Params.pad2_length")
pad2.Reversed = True

sketch4 = body.newObject("Sketcher::SketchObject", "Sketch003")
sketch4.AttachmentSupport = (doc.getObject("XY_Plane"), [""])
sketch4.MapMode = "FlatFace"
sketch4.AttachmentOffset = App.Placement(Vector(0, 0, 6), App.Rotation())
sketch4.addGeometry(Part.Circle(Vector(-15, -58, 0), Vector(0, 0, 1), 1.5), False)
sketch4.addGeometry(Part.Circle(Vector(-76, -58, 0), Vector(0, 0, 1), 1.5), False)
sketch4.addGeometry(Part.Circle(Vector(80, 96, 0), Vector(0, 0, 1), 1.5), False)
sketch4.addGeometry(Part.Circle(Vector(81.5, 51, 0), Vector(0, 0, 1), 1.5), False)
sketch4.addGeometry(Part.Circle(Vector(76, -58, 0), Vector(0, 0, 1), 1.5), False)
sketch4.addGeometry(Part.Circle(Vector(15, -58, 0), Vector(0, 0, 1), 1.5), False)
sketch4.addGeometry(Part.Circle(Vector(-81.5, 51, 0), Vector(0, 0, 1), 1.5), False)
sketch4.addGeometry(Part.Circle(Vector(-99, 122, 0), Vector(0, 0, 1), 1.5), False)
sketch4.addGeometry(Part.Circle(Vector(-24, 122, 0), Vector(0, 0, 1), 1.5), False)
sketch4.addGeometry(Part.Circle(Vector(24, 122, 0), Vector(0, 0, 1), 1.5), False)
sketch4.addGeometry(Part.Circle(Vector(99, 122, 0), Vector(0, 0, 1), 1.5), False)
sketch4.addConstraint(Sketcher.Constraint("Equal", 0, 1))
sketch4.addConstraint(Sketcher.Constraint("Equal", 1, 2))
sketch4.addConstraint(Sketcher.Constraint("Equal", 2, 3))
sketch4.addConstraint(Sketcher.Constraint("Equal", 3, 4))
sketch4.addConstraint(Sketcher.Constraint("Equal", 4, 5))
sketch4.addConstraint(Sketcher.Constraint("Equal", 5, 6))
sketch4.addConstraint(Sketcher.Constraint("Equal", 6, 7))
sketch4.addConstraint(Sketcher.Constraint("Equal", 7, 8))
sketch4.addConstraint(Sketcher.Constraint("Equal", 8, 9))
sketch4.addConstraint(Sketcher.Constraint("Equal", 9, 10))
sketch4.addConstraint(Sketcher.Constraint("Symmetric", 1, 3, 4, 3, -2))
sketch4.addConstraint(Sketcher.Constraint("Symmetric", 0, 3, 5, 3, -2))
sketch4.addConstraint(Sketcher.Constraint("Symmetric", 3, 3, 6, 3, -2))
sketch4.addConstraint(Sketcher.Constraint("Symmetric", 8, 3, 9, 3, -2))
sketch4.addConstraint(Sketcher.Constraint("Symmetric", 7, 3, 10, 3, -2))
sketch4.addConstraint(Sketcher.Constraint("Horizontal", 0, 3, 1, 3))
sketch4.addConstraint(Sketcher.Constraint("Horizontal", 7, 3, 8, 3))
sketch4.addConstraint(Sketcher.Constraint("Diameter", 0, 3.0))
sketch4.addConstraint(Sketcher.Constraint("DistanceX", 0, 3, -1, 1, 15.0))
sketch4.addConstraint(Sketcher.Constraint("DistanceY", 0, 3, -1, 1, 58.0))
sketch4.addConstraint(Sketcher.Constraint("DistanceX", 1, 3, -1, 1, 76.0))
sketch4.addConstraint(Sketcher.Constraint("DistanceX", -1, 1, 2, 3, 80.0))
sketch4.addConstraint(Sketcher.Constraint("DistanceY", -1, 1, 2, 3, 96.0))
sketch4.addConstraint(Sketcher.Constraint("DistanceY", -1, 1, 3, 3, 51.0))
sketch4.addConstraint(Sketcher.Constraint("DistanceX", 7, 3, -1, 1, 99.0))
sketch4.addConstraint(Sketcher.Constraint("DistanceY", -1, 1, 7, 3, 122.0))
sketch4.addConstraint(Sketcher.Constraint("DistanceX", 8, 3, -1, 1, 24.0))
sketch4.addConstraint(Sketcher.Constraint("DistanceX", 6, 3, 3, 3, 163.0))
sketch4.setExpression("Constraints[17]", "Params.sketch4_diameter")
pocket2 = body.newObject("PartDesign::Pocket", "Pocket001")
pocket2.Profile = sketch4
pocket2.setExpression("Length", "Params.pocket2_length")

sketch5 = body.newObject("Sketcher::SketchObject", "Sketch004")
sketch5.AttachmentSupport = (doc.getObject("XY_Plane"), [""])
sketch5.MapMode = "FlatFace"
sketch5.AttachmentOffset = App.Placement(Vector(0, 0, 6), App.Rotation())
sketch5.addGeometry(Part.LineSegment(Vector(-119, 119, 0), Vector(-119, -125, 0)), False)
sketch5.addGeometry(Part.LineSegment(Vector(-119, -125, 0), Vector(-109, -125, 0)), False)
sketch5.addGeometry(Part.LineSegment(Vector(-109, -125, 0), Vector(-109, 119, 0)), False)
sketch5.addGeometry(Part.LineSegment(Vector(-109, 119, 0), Vector(-119, 119, 0)), False)
sketch5.addGeometry(Part.LineSegment(Vector(109, 119, 0), Vector(109, -125, 0)), False)
sketch5.addGeometry(Part.LineSegment(Vector(109, -125, 0), Vector(119, -125, 0)), False)
sketch5.addGeometry(Part.LineSegment(Vector(119, -125, 0), Vector(119, 119, 0)), False)
sketch5.addGeometry(Part.LineSegment(Vector(119, 119, 0), Vector(109, 119, 0)), False)
sketch5.addConstraint(Sketcher.Constraint("Coincident", 0, 2, 1, 1))
sketch5.addConstraint(Sketcher.Constraint("Coincident", 1, 2, 2, 1))
sketch5.addConstraint(Sketcher.Constraint("Coincident", 2, 2, 3, 1))
sketch5.addConstraint(Sketcher.Constraint("Coincident", 3, 2, 0, 1))
sketch5.addConstraint(Sketcher.Constraint("Coincident", 4, 2, 5, 1))
sketch5.addConstraint(Sketcher.Constraint("Coincident", 5, 2, 6, 1))
sketch5.addConstraint(Sketcher.Constraint("Coincident", 6, 2, 7, 1))
sketch5.addConstraint(Sketcher.Constraint("Coincident", 7, 2, 4, 1))
sketch5.addConstraint(Sketcher.Constraint("Vertical", 0))
sketch5.addConstraint(Sketcher.Constraint("Horizontal", 1))
sketch5.addConstraint(Sketcher.Constraint("Vertical", 2))
sketch5.addConstraint(Sketcher.Constraint("Horizontal", 3))
sketch5.addConstraint(Sketcher.Constraint("Vertical", 4))
sketch5.addConstraint(Sketcher.Constraint("Horizontal", 5))
sketch5.addConstraint(Sketcher.Constraint("Vertical", 6))
sketch5.addConstraint(Sketcher.Constraint("Horizontal", 7))
sketch5.addConstraint(Sketcher.Constraint("Symmetric", 1, 2, 4, 2, -2))
sketch5.addConstraint(Sketcher.Constraint("Symmetric", 3, 2, 6, 2, -2))
sketch5.addConstraint(Sketcher.Constraint("DistanceX", 1, 1, 1, 2, 10.0))
sketch5.addConstraint(Sketcher.Constraint("DistanceY", 0, 2, 0, 1, 244.0))
sketch5.addConstraint(Sketcher.Constraint("DistanceX", 0, 2, -1, 1, 119.0))
sketch5.addConstraint(Sketcher.Constraint("DistanceY", 0, 2, -1, 1, 125.0))
sketch5.setExpression("Constraints[18]", "Params.sketch5_width")
sketch5.setExpression("Constraints[19]", "Params.sketch5_height")
pad3 = body.newObject("PartDesign::Pad", "Pad002")
pad3.Profile = sketch5
pad3.setExpression("Length", "Params.pad3_length")
pad3.Reversed = True

sketch6 = body.newObject("Sketcher::SketchObject", "Sketch005")
sketch6.AttachmentSupport = (doc.getObject("XY_Plane"), [""])
sketch6.MapMode = "FlatFace"
sketch6.AttachmentOffset = App.Placement(Vector(0, 0, 6), App.Rotation())
sketch6.addGeometry(Part.LineSegment(Vector(89, -107, 0), Vector(89, -119, 0)), False)
sketch6.addGeometry(Part.LineSegment(Vector(89, -119, 0), Vector(109, -119, 0)), False)
sketch6.addGeometry(Part.LineSegment(Vector(109, -119, 0), Vector(109, -107, 0)), False)
sketch6.addGeometry(Part.LineSegment(Vector(109, -107, 0), Vector(89, -107, 0)), False)
sketch6.addGeometry(Part.LineSegment(Vector(-109, -107, 0), Vector(-109, -119, 0)), False)
sketch6.addGeometry(Part.LineSegment(Vector(-109, -119, 0), Vector(-89, -119, 0)), False)
sketch6.addGeometry(Part.LineSegment(Vector(-89, -119, 0), Vector(-89, -107, 0)), False)
sketch6.addGeometry(Part.LineSegment(Vector(-89, -107, 0), Vector(-109, -107, 0)), False)
sketch6.addConstraint(Sketcher.Constraint("Coincident", 0, 2, 1, 1))
sketch6.addConstraint(Sketcher.Constraint("Coincident", 1, 2, 2, 1))
sketch6.addConstraint(Sketcher.Constraint("Coincident", 2, 2, 3, 1))
sketch6.addConstraint(Sketcher.Constraint("Coincident", 3, 2, 0, 1))
sketch6.addConstraint(Sketcher.Constraint("Coincident", 4, 2, 5, 1))
sketch6.addConstraint(Sketcher.Constraint("Coincident", 5, 2, 6, 1))
sketch6.addConstraint(Sketcher.Constraint("Coincident", 6, 2, 7, 1))
sketch6.addConstraint(Sketcher.Constraint("Coincident", 7, 2, 4, 1))
sketch6.addConstraint(Sketcher.Constraint("Vertical", 0))
sketch6.addConstraint(Sketcher.Constraint("Horizontal", 1))
sketch6.addConstraint(Sketcher.Constraint("Vertical", 2))
sketch6.addConstraint(Sketcher.Constraint("Horizontal", 3))
sketch6.addConstraint(Sketcher.Constraint("Vertical", 4))
sketch6.addConstraint(Sketcher.Constraint("Horizontal", 5))
sketch6.addConstraint(Sketcher.Constraint("Vertical", 6))
sketch6.addConstraint(Sketcher.Constraint("Horizontal", 7))
sketch6.addConstraint(Sketcher.Constraint("Symmetric", 1, 2, 4, 2, -2))
sketch6.addConstraint(Sketcher.Constraint("Symmetric", 3, 2, 6, 2, -2))
sketch6.addConstraint(Sketcher.Constraint("DistanceX", 1, 1, 1, 2, 20.0))
sketch6.addConstraint(Sketcher.Constraint("DistanceY", 0, 2, 0, 1, 12.0))
sketch6.addConstraint(Sketcher.Constraint("DistanceX", -1, 1, 0, 2, 89.0))
sketch6.addConstraint(Sketcher.Constraint("DistanceY", 0, 2, -1, 1, 119.0))
sketch6.setExpression("Constraints[18]", "Params.sketch6_width")
sketch6.setExpression("Constraints[19]", "Params.sketch6_height")
pocket3 = body.newObject("PartDesign::Pocket", "Pocket002")
pocket3.Profile = sketch6
pocket3.setExpression("Length", "Params.pocket3_length")

sketch7 = body.newObject("Sketcher::SketchObject", "Sketch006")
sketch7.AttachmentSupport = (doc.getObject("XY_Plane"), [""])
sketch7.MapMode = "FlatFace"
sketch7.AttachmentOffset = App.Placement(Vector(0, 0, 6), App.Rotation())
sketch7.addGeometry(Part.Circle(Vector(-8, 100.5, 0), Vector(0, 0, 1), 1.2), False)
sketch7.addGeometry(Part.Circle(Vector(8, 100.5, 0), Vector(0, 0, 1), 1.2), False)
sketch7.addGeometry(Part.Circle(Vector(-8, 84.5, 0), Vector(0, 0, 1), 1.2), False)
sketch7.addGeometry(Part.Circle(Vector(8, 84.5, 0), Vector(0, 0, 1), 1.2), False)
sketch7.addConstraint(Sketcher.Constraint("Equal", 0, 1))
sketch7.addConstraint(Sketcher.Constraint("Equal", 1, 2))
sketch7.addConstraint(Sketcher.Constraint("Equal", 2, 3))
sketch7.addConstraint(Sketcher.Constraint("Symmetric", 0, 3, 1, 3, -2))
sketch7.addConstraint(Sketcher.Constraint("Symmetric", 2, 3, 3, 3, -2))
sketch7.addConstraint(Sketcher.Constraint("Vertical", 0, 3, 2, 3))
sketch7.addConstraint(Sketcher.Constraint("Diameter", 0, 2.35))
sketch7.addConstraint(Sketcher.Constraint("DistanceX", 0, 3, -1, 1, 8.0))
sketch7.addConstraint(Sketcher.Constraint("DistanceY", 2, 3, 0, 3, 16.0))
sketch7.addConstraint(Sketcher.Constraint("DistanceY", -1, 1, 0, 3, 100.5))
sketch7.setExpression("Constraints[6]", "Params.sketch7_diameter")
pocket4 = body.newObject("PartDesign::Pocket", "Pocket003")
pocket4.Profile = sketch7
pocket4.Type = "ThroughAll"

doc.recompute()
